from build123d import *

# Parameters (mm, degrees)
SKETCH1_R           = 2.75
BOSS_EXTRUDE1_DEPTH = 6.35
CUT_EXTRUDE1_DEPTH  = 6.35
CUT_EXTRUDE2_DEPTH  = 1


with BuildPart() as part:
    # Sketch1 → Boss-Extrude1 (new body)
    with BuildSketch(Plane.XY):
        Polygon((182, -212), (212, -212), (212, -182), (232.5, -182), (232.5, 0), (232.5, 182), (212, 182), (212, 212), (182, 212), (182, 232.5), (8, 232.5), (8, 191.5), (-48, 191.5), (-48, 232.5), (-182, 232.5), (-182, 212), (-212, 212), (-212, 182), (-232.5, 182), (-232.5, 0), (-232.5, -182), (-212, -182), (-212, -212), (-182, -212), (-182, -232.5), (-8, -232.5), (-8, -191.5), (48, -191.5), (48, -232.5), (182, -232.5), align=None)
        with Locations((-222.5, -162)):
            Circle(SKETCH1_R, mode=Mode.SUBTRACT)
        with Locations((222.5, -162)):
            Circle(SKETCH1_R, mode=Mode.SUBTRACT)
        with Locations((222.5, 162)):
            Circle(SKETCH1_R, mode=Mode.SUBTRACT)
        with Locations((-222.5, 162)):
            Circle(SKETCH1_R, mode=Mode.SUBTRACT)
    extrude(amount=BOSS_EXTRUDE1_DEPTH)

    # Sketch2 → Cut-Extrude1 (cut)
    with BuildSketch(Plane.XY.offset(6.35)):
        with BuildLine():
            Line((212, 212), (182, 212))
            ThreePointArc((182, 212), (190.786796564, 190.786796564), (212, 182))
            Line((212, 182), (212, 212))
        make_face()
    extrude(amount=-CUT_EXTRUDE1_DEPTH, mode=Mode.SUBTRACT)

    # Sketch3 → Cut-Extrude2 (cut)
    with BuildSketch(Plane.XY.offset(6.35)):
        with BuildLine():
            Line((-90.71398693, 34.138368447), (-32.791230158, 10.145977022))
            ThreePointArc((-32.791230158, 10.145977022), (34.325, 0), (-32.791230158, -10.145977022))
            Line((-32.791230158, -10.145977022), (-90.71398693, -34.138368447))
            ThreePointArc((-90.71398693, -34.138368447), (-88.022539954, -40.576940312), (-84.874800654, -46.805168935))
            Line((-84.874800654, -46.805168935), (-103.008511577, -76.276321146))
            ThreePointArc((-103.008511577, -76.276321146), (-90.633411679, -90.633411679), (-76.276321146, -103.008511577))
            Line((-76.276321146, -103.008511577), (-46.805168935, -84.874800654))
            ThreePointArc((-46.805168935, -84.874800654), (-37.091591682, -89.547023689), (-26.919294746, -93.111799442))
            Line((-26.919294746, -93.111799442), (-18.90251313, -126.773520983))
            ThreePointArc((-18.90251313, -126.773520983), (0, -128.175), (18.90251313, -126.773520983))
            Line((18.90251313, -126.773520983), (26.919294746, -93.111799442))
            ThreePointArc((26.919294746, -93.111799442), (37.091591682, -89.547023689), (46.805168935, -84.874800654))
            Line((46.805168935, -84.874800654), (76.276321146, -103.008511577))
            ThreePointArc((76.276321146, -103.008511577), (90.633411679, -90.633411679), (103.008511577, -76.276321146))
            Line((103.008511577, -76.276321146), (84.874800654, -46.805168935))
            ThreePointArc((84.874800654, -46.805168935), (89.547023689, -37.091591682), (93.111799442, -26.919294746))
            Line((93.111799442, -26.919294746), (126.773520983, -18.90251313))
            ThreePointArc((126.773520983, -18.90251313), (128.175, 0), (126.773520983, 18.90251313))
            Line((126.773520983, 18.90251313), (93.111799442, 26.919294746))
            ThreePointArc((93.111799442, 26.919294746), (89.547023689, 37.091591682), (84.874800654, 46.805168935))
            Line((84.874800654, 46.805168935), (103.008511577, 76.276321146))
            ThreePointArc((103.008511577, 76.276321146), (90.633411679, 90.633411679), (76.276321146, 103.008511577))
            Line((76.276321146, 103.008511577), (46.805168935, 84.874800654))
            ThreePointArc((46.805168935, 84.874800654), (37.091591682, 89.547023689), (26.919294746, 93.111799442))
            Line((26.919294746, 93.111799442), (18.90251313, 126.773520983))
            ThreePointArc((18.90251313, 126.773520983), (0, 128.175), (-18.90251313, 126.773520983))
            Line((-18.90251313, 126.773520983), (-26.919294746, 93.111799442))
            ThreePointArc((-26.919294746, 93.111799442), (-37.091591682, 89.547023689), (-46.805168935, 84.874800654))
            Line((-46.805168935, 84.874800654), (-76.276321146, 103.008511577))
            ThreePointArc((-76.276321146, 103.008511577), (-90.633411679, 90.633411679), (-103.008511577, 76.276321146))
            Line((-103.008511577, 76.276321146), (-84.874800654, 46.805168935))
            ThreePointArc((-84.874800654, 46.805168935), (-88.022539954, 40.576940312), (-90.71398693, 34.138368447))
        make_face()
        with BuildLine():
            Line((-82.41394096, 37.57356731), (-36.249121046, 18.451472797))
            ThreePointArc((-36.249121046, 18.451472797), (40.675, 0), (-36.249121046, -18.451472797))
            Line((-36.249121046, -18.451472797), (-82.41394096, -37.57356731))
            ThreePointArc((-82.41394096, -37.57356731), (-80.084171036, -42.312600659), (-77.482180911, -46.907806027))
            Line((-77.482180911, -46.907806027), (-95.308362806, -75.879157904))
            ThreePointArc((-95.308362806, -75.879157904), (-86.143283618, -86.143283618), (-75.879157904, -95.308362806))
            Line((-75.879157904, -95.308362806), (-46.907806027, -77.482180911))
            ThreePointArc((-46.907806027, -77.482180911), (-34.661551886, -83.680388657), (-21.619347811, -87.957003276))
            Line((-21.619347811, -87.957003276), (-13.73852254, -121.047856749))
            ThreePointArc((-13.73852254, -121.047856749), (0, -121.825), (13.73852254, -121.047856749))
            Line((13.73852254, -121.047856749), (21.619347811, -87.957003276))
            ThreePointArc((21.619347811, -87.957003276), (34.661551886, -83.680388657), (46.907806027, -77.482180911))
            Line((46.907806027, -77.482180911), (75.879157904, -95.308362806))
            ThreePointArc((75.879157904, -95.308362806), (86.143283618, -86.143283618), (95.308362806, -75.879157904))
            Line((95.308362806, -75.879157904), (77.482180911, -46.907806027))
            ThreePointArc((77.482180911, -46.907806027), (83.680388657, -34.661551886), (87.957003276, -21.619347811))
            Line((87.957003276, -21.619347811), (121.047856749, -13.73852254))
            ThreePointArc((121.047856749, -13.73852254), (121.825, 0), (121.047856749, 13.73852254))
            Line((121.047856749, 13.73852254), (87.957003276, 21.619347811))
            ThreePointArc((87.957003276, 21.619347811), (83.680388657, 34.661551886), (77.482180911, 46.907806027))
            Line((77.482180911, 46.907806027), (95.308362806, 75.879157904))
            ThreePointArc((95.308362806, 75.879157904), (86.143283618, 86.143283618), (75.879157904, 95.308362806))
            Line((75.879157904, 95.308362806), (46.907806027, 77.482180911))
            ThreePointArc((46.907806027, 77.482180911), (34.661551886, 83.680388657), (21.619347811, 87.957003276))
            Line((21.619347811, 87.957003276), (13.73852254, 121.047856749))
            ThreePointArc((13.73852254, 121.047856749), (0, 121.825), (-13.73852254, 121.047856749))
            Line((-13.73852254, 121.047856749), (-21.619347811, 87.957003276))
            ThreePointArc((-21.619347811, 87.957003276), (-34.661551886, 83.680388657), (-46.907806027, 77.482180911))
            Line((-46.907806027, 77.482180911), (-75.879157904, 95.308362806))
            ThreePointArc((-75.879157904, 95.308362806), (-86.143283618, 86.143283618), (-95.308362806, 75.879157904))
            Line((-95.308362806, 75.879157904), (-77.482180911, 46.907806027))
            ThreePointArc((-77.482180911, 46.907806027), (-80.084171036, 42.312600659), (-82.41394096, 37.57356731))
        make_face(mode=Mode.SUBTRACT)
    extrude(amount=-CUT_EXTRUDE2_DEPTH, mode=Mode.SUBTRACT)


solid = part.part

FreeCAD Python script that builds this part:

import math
import FreeCAD as App
import Part
import Sketcher
Q = App.Units.Quantity


def add_polygon(sketch, points):
    """Adds a closed chain of lines whose ends are joined by coincident constraints."""
    first, n = sketch.GeometryCount, len(points)
    for a, b in zip(points, points[1:] + points[:1]):
        sketch.addGeometry(Part.LineSegment(App.Vector(*a, 0), App.Vector(*b, 0)), False)
    for i in range(n):
        sketch.addConstraint(Sketcher.Constraint("Coincident", first + i, 2, first + (i + 1) % n, 1))

doc = App.newDocument("Part")
body = doc.addObject("PartDesign::Body", "Body")

# Sketch on XY plane
sketch1 = doc.addObject("Sketcher::SketchObject", "Sketch")
body.addObject(sketch1)
sketch1.AttachmentSupport = (doc.XY_Plane, [""])
sketch1.MapMode = "FlatFace"
add_polygon(sketch1, [(182, -212), (212, -212), (212, -182), (232.5, -182), (232.5, 182), (212, 182), (212, 212), (182, 212), (182, 232.5), (8, 232.5), (8, 191.5), (-48, 191.5), (-48, 232.5), (-182, 232.5), (-182, 212), (-212, 212), (-212, 182), (-232.5, 182), (-232.5, -182), (-212, -182), (-212, -212), (-182, -212), (-182, -232.5), (-8, -232.5), (-8, -191.5), (48, -191.5), (48, -232.5), (182, -232.5)])  # lines 0-27
sketch1.addGeometry(Part.Circle(App.Vector(-222.5, -162, 0), App.Vector(0, 0, 1), 2.8), False)  # 28
sketch1.addGeometry(Part.Circle(App.Vector(222.5, -162, 0), App.Vector(0, 0, 1), 2.8), False)  # 29
sketch1.addGeometry(Part.Circle(App.Vector(-222.5, 162, 0), App.Vector(0, 0, 1), 2.8), False)  # 30
sketch1.addGeometry(Part.Circle(App.Vector(222.5, 162, 0), App.Vector(0, 0, 1), 2.8), False)  # 31
sketch1.addConstraint([
    Sketcher.Constraint("Horizontal", 0),
    Sketcher.Constraint("Vertical", 1),
    Sketcher.Constraint("Horizontal", 2),
    Sketcher.Constraint("Vertical", 3),
    Sketcher.Constraint("Horizontal", 4),
    Sketcher.Constraint("Vertical", 5),
    Sketcher.Constraint("Horizontal", 6),
    Sketcher.Constraint("Vertical", 7),
    Sketcher.Constraint("Horizontal", 8),
    Sketcher.Constraint("Vertical", 9),
    Sketcher.Constraint("Horizontal", 10),
    Sketcher.Constraint("Vertical", 11),
    Sketcher.Constraint("Horizontal", 12),
    Sketcher.Constraint("Vertical", 13),
    Sketcher.Constraint("Horizontal", 14),
    Sketcher.Constraint("Vertical", 15),
    Sketcher.Constraint("Horizontal", 16),
    Sketcher.Constraint("Vertical", 17),
    Sketcher.Constraint("Horizontal", 18),
    Sketcher.Constraint("Vertical", 19),
    Sketcher.Constraint("Horizontal", 20),
    Sketcher.Constraint("Vertical", 21),
    Sketcher.Constraint("Horizontal", 22),
    Sketcher.Constraint("Vertical", 23),
    Sketcher.Constraint("Horizontal", 24),
    Sketcher.Constraint("Vertical", 25),
    Sketcher.Constraint("Horizontal", 26),
    Sketcher.Constraint("Vertical", 27),
    Sketcher.Constraint("Equal", 28, 29),
    Sketcher.Constraint("Equal", 29, 30),
    Sketcher.Constraint("Equal", 30, 31),
    Sketcher.Constraint("Symmetric", 29, 3, 30, 3, -1, 1),
    Sketcher.Constraint("Symmetric", 28, 3, 31, 3, -1, 1),
    Sketcher.Constraint("Symmetric", 0, 2, 14, 2, -1, 1),
    Sketcher.Constraint("Symmetric", 2, 2, 16, 2, -1, 1),
    Sketcher.Constraint("Symmetric", 4, 2, 18, 2, -1, 1),
    Sketcher.Constraint("Symmetric", 6, 2, 20, 2, -1, 1),
    Sketcher.Constraint("Symmetric", 8, 2, 22, 2, -1, 1),
    Sketcher.Constraint("Symmetric", 10, 2, 24, 2, -1, 1),
    Sketcher.Constraint("Symmetric", 12, 2, 26, 2, -1, 1),
    Sketcher.Constraint("Symmetric", 28, 3, 29, 3, -2),
    Sketcher.Constraint("Symmetric", 7, 2, 12, 2, -2),
    Sketcher.Constraint("Symmetric", 5, 2, 14, 2, -2),
    Sketcher.Constraint("Horizontal", 4, 2, 15, 2),
    Sketcher.Constraint("Equal", 20, 1),
    Sketcher.Constraint("Equal", 18, 7),
    Sketcher.Constraint("Diameter", 28, 5.5),
    Sketcher.Constraint("DistanceX", 0, 1, 0, 2, 30.0),
    Sketcher.Constraint("DistanceX", 8, 2, 8, 1, 174.0),
    Sketcher.Constraint("DistanceX", 10, 2, 10, 1, 56.0),
    Sketcher.Constraint("DistanceX", 12, 2, 12, 1, 134.0),
    Sketcher.Constraint("DistanceY", 3, 1, 3, 2, 364.0),
    Sketcher.Constraint("DistanceY", 9, 2, 9, 1, 41.0),
    Sketcher.Constraint("DistanceX", 2, 1, 2, 2, 20.5),
    Sketcher.Constraint("DistanceY", 28, 3, -1, 1, 162.0),
    Sketcher.Constraint("DistanceX", 28, 3, 29, 3, 445.0),
])
pad1 = doc.addObject("PartDesign::Pad", "Pad")
body.addObject(pad1)
pad1.Profile = sketch1
pad1.Length = 6.35

# Sketch on XY plane
sketch2 = doc.addObject("Sketcher::SketchObject", "Sketch001")
body.addObject(sketch2)
sketch2.AttachmentSupport = (doc.XY_Plane, [""])
sketch2.MapMode = "FlatFace"
sketch2.AttachmentOffset = App.Placement(App.Vector(0, 0, 6.35), App.Rotation())
sketch2.addGeometry([
    Part.LineSegment(App.Vector(212, 212, 0), App.Vector(182, 212, 0)),
    Part.ArcOfCircle(Part.Circle(App.Vector(212, 212, 0), App.Vector(0, 0, 1), 30), math.radians(180), math.radians(270)),
    Part.LineSegment(App.Vector(212, 182, 0), App.Vector(212, 212, 0)),
], False)
sketch2.addConstraint([
    Sketcher.Constraint("Coincident", 0, 2, 1, 1),
    Sketcher.Constraint("Coincident", 1, 2, 2, 1),
    Sketcher.Constraint("Coincident", 2, 2, 0, 1),
    Sketcher.Constraint("Horizontal", 0),
    Sketcher.Constraint("Vertical", 2),
    Sketcher.Constraint("Coincident", 2, 2, 1, 3),
    Sketcher.Constraint("Radius", 1, 30.0),
    Sketcher.Constraint("DistanceX", -1, 1, 1, 3, 212.0),
    Sketcher.Constraint("DistanceY", -1, 1, 1, 3, 212.0),
])
pocket1 = doc.addObject("PartDesign::Pocket", "Pocket")
body.addObject(pocket1)
pocket1.Profile = sketch2
pocket1.Length = 6.35

# Sketch on XY plane
sketch3 = doc.addObject("Sketcher::SketchObject", "Sketch002")
body.addObject(sketch3)
sketch3.AttachmentSupport = (doc.XY_Plane, [""])
sketch3.MapMode = "FlatFace"
sketch3.AttachmentOffset = App.Placement(App.Vector(0, 0, 6.35), App.Rotation())
sketch3.addGeometry([
    Part.LineSegment(App.Vector(-91, 34, 0), App.Vector(-33, 10, 0)),  # 0
    Part.ArcOfCircle(Part.Circle(App.Vector(0, 0, 0), App.Vector(0, 0, 1), 34), math.radians(-163), math.radians(163)),  # 1
    Part.LineSegment(App.Vector(-33, -10, 0), App.Vector(-91, -34, 0)),  # 2
    Part.ArcOfCircle(Part.Circle(App.Vector(0, 0, 0), App.Vector(0, 0, 1), 97), math.radians(-159.38), math.radians(-151.12)),  # 3
    Part.LineSegment(App.Vector(-85, -47, 0), App.Vector(-103, -76, 0)),  # 4
    Part.ArcOfCircle(Part.Circle(App.Vector(0, 0, 0), App.Vector(0, 0, 1), 128), math.radians(-143.48), math.radians(-126.52)),  # 5
    Part.LineSegment(App.Vector(-76, -103, 0), App.Vector(-47, -85, 0)),  # 6
    Part.ArcOfCircle(Part.Circle(App.Vector(0, 0, 0), App.Vector(0, 0, 1), 97), math.radians(-118.88), math.radians(-106.12)),  # 7
    Part.LineSegment(App.Vector(-27, -93, 0), App.Vector(-19, -127, 0)),  # 8
    Part.ArcOfCircle(Part.Circle(App.Vector(0, 0, 0), App.Vector(0, 0, 1), 128), math.radians(-98.48), math.radians(-81.52)),  # 9
    Part.LineSegment(App.Vector(19, -127, 0), App.Vector(27, -93, 0)),  # 10
    Part.ArcOfCircle(Part.Circle(App.Vector(0, 0, 0), App.Vector(0, 0, 1), 97), math.radians(-73.88), math.radians(-61.12)),  # 11
    Part.LineSegment(App.Vector(47, -85, 0), App.Vector(76, -103, 0)),  # 12
    Part.ArcOfCircle(Part.Circle(App.Vector(0, 0, 0), App.Vector(0, 0, 1), 128), math.radians(-53.48), math.radians(-36.52)),  # 13
    Part.LineSegment(App.Vector(103, -76, 0), App.Vector(85, -47, 0)),  # 14
    Part.ArcOfCircle(Part.Circle(App.Vector(0, 0, 0), App.Vector(0, 0, 1), 97), math.radians(-28.88), math.radians(-16.12)),  # 15
    Part.LineSegment(App.Vector(93, -27, 0), App.Vector(127, -19, 0)),  # 16
    Part.ArcOfCircle(Part.Circle(App.Vector(0, 0, 0), App.Vector(0, 0, 1), 128), math.radians(-8.48), math.radians(8.48)),  # 17
    Part.LineSegment(App.Vector(127, 19, 0), App.Vector(93, 27, 0)),  # 18
    Part.ArcOfCircle(Part.Circle(App.Vector(0, 0, 0), App.Vector(0, 0, 1), 97), math.radians(16.12), math.radians(28.88)),  # 19
    Part.LineSegment(App.Vector(85, 47, 0), App.Vector(103, 76, 0)),  # 20
    Part.ArcOfCircle(Part.Circle(App.Vector(0, 0, 0), App.Vector(0, 0, 1), 128), math.radians(36.52), math.radians(53.48)),  # 21
    Part.LineSegment(App.Vector(76, 103, 0), App.Vector(47, 85, 0)),  # 22
    Part.ArcOfCircle(Part.Circle(App.Vector(0, 0, 0), App.Vector(0, 0, 1), 97), math.radians(61.12), math.radians(73.88)),  # 23
    Part.LineSegment(App.Vector(27, 93, 0), App.Vector(19, 127, 0)),  # 24
    Part.ArcOfCircle(Part.Circle(App.Vector(0, 0, 0), App.Vector(0, 0, 1), 128), math.radians(81.52), math.radians(98.48)),  # 25
    Part.LineSegment(App.Vector(-19, 127, 0), App.Vector(-27, 93, 0)),  # 26
    Part.ArcOfCircle(Part.Circle(App.Vector(0, 0, 0), App.Vector(0, 0, 1), 97), math.radians(106.12), math.radians(118.88)),  # 27
    Part.LineSegment(App.Vector(-47, 85, 0), App.Vector(-76, 103, 0)),  # 28
    Part.ArcOfCircle(Part.Circle(App.Vector(0, 0, 0), App.Vector(0, 0, 1), 128), math.radians(126.52), math.radians(143.48)),  # 29
    Part.LineSegment(App.Vector(-103, 76, 0), App.Vector(-85, 47, 0)),  # 30
    Part.ArcOfCircle(Part.Circle(App.Vector(0, 0, 0), App.Vector(0, 0, 1), 97), math.radians(151.12), math.radians(159.38)),  # 31
    Part.LineSegment(App.Vector(-36, 18, 0), App.Vector(-82, 38, 0)),  # 32
    Part.ArcOfCircle(Part.Circle(App.Vector(0, 0, 0), App.Vector(0, 0, 1), 91), math.radians(148.81), math.radians(155.49)),  # 33
    Part.LineSegment(App.Vector(-77, 47, 0), App.Vector(-95, 76, 0)),  # 34
    Part.ArcOfCircle(Part.Circle(App.Vector(0, 0, 0), App.Vector(0, 0, 1), 122), math.radians(128.52), math.radians(141.48)),  # 35
    Part.LineSegment(App.Vector(-76, 95, 0), App.Vector(-47, 77, 0)),  # 36
    Part.ArcOfCircle(Part.Circle(App.Vector(0, 0, 0), App.Vector(0, 0, 1), 91), math.radians(103.81), math.radians(121.19)),  # 37
    Part.LineSegment(App.Vector(-22, 88, 0), App.Vector(-14, 121, 0)),  # 38
    Part.ArcOfCircle(Part.Circle(App.Vector(0, 0, 0), App.Vector(0, 0, 1), 122), math.radians(83.52), math.radians(96.48)),  # 39
    Part.LineSegment(App.Vector(14, 121, 0), App.Vector(22, 88, 0)),  # 40
    Part.ArcOfCircle(Part.Circle(App.Vector(0, 0, 0), App.Vector(0, 0, 1), 91), math.radians(58.81), math.radians(76.19)),  # 41
    Part.LineSegment(App.Vector(47, 77, 0), App.Vector(76, 95, 0)),  # 42
    Part.ArcOfCircle(Part.Circle(App.Vector(0, 0, 0), App.Vector(0, 0, 1), 122), math.radians(38.52), math.radians(51.48)),  # 43
    Part.LineSegment(App.Vector(95, 76, 0), App.Vector(77, 47, 0)),  # 44
    Part.ArcOfCircle(Part.Circle(App.Vector(0, 0, 0), App.Vector(0, 0, 1), 91), math.radians(13.81), math.radians(31.19)),  # 45
    Part.LineSegment(App.Vector(88, 22, 0), App.Vector(121, 14, 0)),  # 46
    Part.ArcOfCircle(Part.Circle(App.Vector(0, 0, 0), App.Vector(0, 0, 1), 122), math.radians(-6.48), math.radians(6.48)),  # 47
    Part.LineSegment(App.Vector(121, -14, 0), App.Vector(88, -22, 0)),  # 48
    Part.ArcOfCircle(Part.Circle(App.Vector(0, 0, 0), App.Vector(0, 0, 1), 91), math.radians(-31.19), math.radians(-13.81)),  # 49
    Part.LineSegment(App.Vector(77, -47, 0), App.Vector(95, -76, 0)),  # 50
    Part.ArcOfCircle(Part.Circle(App.Vector(0, 0, 0), App.Vector(0, 0, 1), 122), math.radians(-51.48), math.radians(-38.52)),  # 51
    Part.LineSegment(App.Vector(76, -95, 0), App.Vector(47, -77, 0)),  # 52
    Part.ArcOfCircle(Part.Circle(App.Vector(0, 0, 0), App.Vector(0, 0, 1), 91), math.radians(-76.19), math.radians(-58.81)),  # 53
    Part.LineSegment(App.Vector(22, -88, 0), App.Vector(14, -121, 0)),  # 54
    Part.ArcOfCircle(Part.Circle(App.Vector(0, 0, 0), App.Vector(0, 0, 1), 122), math.radians(-96.48), math.radians(-83.52)),  # 55
    Part.LineSegment(App.Vector(-14, -121, 0), App.Vector(-22, -88, 0)),  # 56
    Part.ArcOfCircle(Part.Circle(App.Vector(0, 0, 0), App.Vector(0, 0, 1), 91), math.radians(-121.19), math.radians(-103.81)),  # 57
    Part.LineSegment(App.Vector(-47, -77, 0), App.Vector(-76, -95, 0)),  # 58
    Part.ArcOfCircle(Part.Circle(App.Vector(0, 0, 0), App.Vector(0, 0, 1), 122), math.radians(-141.48), math.radians(-128.52)),  # 59
    Part.LineSegment(App.Vector(-95, -76, 0), App.Vector(-77, -47, 0)),  # 60
    Part.ArcOfCircle(Part.Circle(App.Vector(0, 0, 0), App.Vector(0, 0, 1), 91), math.radians(-155.49), math.radians(-148.81)),  # 61
    Part.LineSegment(App.Vector(-82, -38, 0), App.Vector(-36, -18, 0)),  # 62
    Part.ArcOfCircle(Part.Circle(App.Vector(0, 0, 0), App.Vector(0, 0, 1), 41), math.radians(-153), math.radians(153)),  # 63
], False)
sketch3.addConstraint([
    Sketcher.Constraint("Coincident", 0, 2, 1, 2),
    Sketcher.Constraint("Coincident", 1, 1, 2, 1),
    Sketcher.Constraint("Coincident", 2, 2, 3, 1),
    Sketcher.Constraint("Coincident", 3, 2, 4, 1),
    Sketcher.Constraint("Coincident", 4, 2, 5, 1),
    Sketcher.Constraint("Coincident", 5, 2, 6, 1),
    Sketcher.Constraint("Coincident", 6, 2, 7, 1),
    Sketcher.Constraint("Coincident", 7, 2, 8, 1),
    Sketcher.Constraint("Coincident", 8, 2, 9, 1),
    Sketcher.Constraint("Coincident", 9, 2, 10, 1),
    Sketcher.Constraint("Coincident", 10, 2, 11, 1),
    Sketcher.Constraint("Coincident", 11, 2, 12, 1),
    Sketcher.Constraint("Coincident", 12, 2, 13, 1),
    Sketcher.Constraint("Coincident", 13, 2, 14, 1),
    Sketcher.Constraint("Coincident", 14, 2, 15, 1),
    Sketcher.Constraint("Coincident", 15, 2, 16, 1),
    Sketcher.Constraint("Coincident", 16, 2, 17, 1),
    Sketcher.Constraint("Coincident", 17, 2, 18, 1),
    Sketcher.Constraint("Coincident", 18, 2, 19, 1),
    Sketcher.Constraint("Coincident", 19, 2, 20, 1),
    Sketcher.Constraint("Coincident", 20, 2, 21, 1),
    Sketcher.Constraint("Coincident", 21, 2, 22, 1),
    Sketcher.Constraint("Coincident", 22, 2, 23, 1),
    Sketcher.Constraint("Coincident", 23, 2, 24, 1),
    Sketcher.Constraint("Coincident", 24, 2, 25, 1),
    Sketcher.Constraint("Coincident", 25, 2, 26, 1),
    Sketcher.Constraint("Coincident", 26, 2, 27, 1),
    Sketcher.Constraint("Coincident", 27, 2, 28, 1),
    Sketcher.Constraint("Coincident", 28, 2, 29, 1),
    Sketcher.Constraint("Coincident", 29, 2, 30, 1),
    Sketcher.Constraint("Coincident", 30, 2, 31, 1),
    Sketcher.Constraint("Coincident", 31, 2, 0, 1),
    Sketcher.Constraint("Coincident", 32, 2, 33, 2),
    Sketcher.Constraint("Coincident", 33, 1, 34, 1),
    Sketcher.Constraint("Coincident", 34, 2, 35, 2),
    Sketcher.Constraint("Coincident", 35, 1, 36, 1),
    Sketcher.Constraint("Coincident", 36, 2, 37, 2),
    Sketcher.Constraint("Coincident", 37, 1, 38, 1),
    Sketcher.Constraint("Coincident", 38, 2, 39, 2),
    Sketcher.Constraint("Coincident", 39, 1, 40, 1),
    Sketcher.Constraint("Coincident", 40, 2, 41, 2),
    Sketcher.Constraint("Coincident", 41, 1, 42, 1),
    Sketcher.Constraint("Coincident", 42, 2, 43, 2),
    Sketcher.Constraint("Coincident", 43, 1, 44, 1),
    Sketcher.Constraint("Coincident", 44, 2, 45, 2),
    Sketcher.Constraint("Coincident", 45, 1, 46, 1),
    Sketcher.Constraint("Coincident", 46, 2, 47, 2),
    Sketcher.Constraint("Coincident", 47, 1, 48, 1),
    Sketcher.Constraint("Coincident", 48, 2, 49, 2),
    Sketcher.Constraint("Coincident", 49, 1, 50, 1),
    Sketcher.Constraint("Coincident", 50, 2, 51, 2),
    Sketcher.Constraint("Coincident", 51, 1, 52, 1),
    Sketcher.Constraint("Coincident", 52, 2, 53, 2),
    Sketcher.Constraint("Coincident", 53, 1, 54, 1),
    Sketcher.Constraint("Coincident", 54, 2, 55, 2),
    Sketcher.Constraint("Coincident", 55, 1, 56, 1),
    Sketcher.Constraint("Coincident", 56, 2, 57, 2),
    Sketcher.Constraint("Coincident", 57, 1, 58, 1),
    Sketcher.Constraint("Coincident", 58, 2, 59, 2),
    Sketcher.Constraint("Coincident", 59, 1, 60, 1),
    Sketcher.Constraint("Coincident", 60, 2, 61, 2),
    Sketcher.Constraint("Coincident", 61, 1, 62, 1),
    Sketcher.Constraint("Coincident", 62, 2, 63, 1),
    Sketcher.Constraint("Coincident", 63, 2, 32, 1),
    Sketcher.Constraint("Coincident", 1, 3, -1, 1),
    Sketcher.Constraint("Coincident", 3, 3, -1, 1),
    Sketcher.Constraint("Coincident", 5, 3, -1, 1),
    Sketcher.Constraint("Coincident", 7, 3, -1, 1),
    Sketcher.Constraint("Coincident", 9, 3, -1, 1),
    Sketcher.Constraint("Coincident", 11, 3, -1, 1),
    Sketcher.Constraint("Coincident", 13, 3, -1, 1),
    Sketcher.Constraint("Coincident", 15, 3, -1, 1),
    Sketcher.Constraint("Coincident", 17, 3, -1, 1),
    Sketcher.Constraint("Coincident", 19, 3, -1, 1),
    Sketcher.Constraint("Coincident", 21, 3, -1, 1),
    Sketcher.Constraint("Coincident", 23, 3, -1, 1),
    Sketcher.Constraint("Coincident", 25, 3, -1, 1),
    Sketcher.Constraint("Coincident", 27, 3, -1, 1),
    Sketcher.Constraint("Coincident", 29, 3, -1, 1),
    Sketcher.Constraint("Coincident", 31, 3, -1, 1),
    Sketcher.Constraint("Coincident", 33, 3, -1, 1),
    Sketcher.Constraint("Coincident", 35, 3, -1, 1),
    Sketcher.Constraint("Coincident", 37, 3, -1, 1),
    Sketcher.Constraint("Coincident", 39, 3, -1, 1),
    Sketcher.Constraint("Coincident", 41, 3, -1, 1),
    Sketcher.Constraint("Coincident", 43, 3, -1, 1),
    Sketcher.Constraint("Coincident", 45, 3, -1, 1),
    Sketcher.Constraint("Coincident", 47, 3, -1, 1),
    Sketcher.Constraint("Coincident", 49, 3, -1, 1),
    Sketcher.Constraint("Coincident", 51, 3, -1, 1),
    Sketcher.Constraint("Coincident", 53, 3, -1, 1),
    Sketcher.Constraint("Coincident", 55, 3, -1, 1),
    Sketcher.Constraint("Coincident", 57, 3, -1, 1),
    Sketcher.Constraint("Coincident", 59, 3, -1, 1),
    Sketcher.Constraint("Coincident", 61, 3, -1, 1),
    Sketcher.Constraint("Coincident", 63, 3, -1, 1),
    Sketcher.Constraint("Equal", 3, 7),
    Sketcher.Constraint("Equal", 5, 9),
    Sketcher.Constraint("Equal", 7, 11),
    Sketcher.Constraint("Equal", 9, 13),
    Sketcher.Constraint("Equal", 11, 15),
    Sketcher.Constraint("Equal", 13, 17),
    Sketcher.Constraint("Equal", 15, 19),
    Sketcher.Constraint("Equal", 17, 21),
    Sketcher.Constraint("Equal", 19, 23),
    Sketcher.Constraint("Equal", 21, 25),
    Sketcher.Constraint("Equal", 23, 27),
    Sketcher.Constraint("Equal", 25, 29),
    Sketcher.Constraint("Equal", 27, 31),
    Sketcher.Constraint("Equal", 33, 37),
    Sketcher.Constraint("Equal", 35, 39),
    Sketcher.Constraint("Equal", 37, 41),
    Sketcher.Constraint("Equal", 39, 43),
    Sketcher.Constraint("Equal", 41, 45),
    Sketcher.Constraint("Equal", 43, 47),
    Sketcher.Constraint("Equal", 45, 49),
    Sketcher.Constraint("Equal", 47, 51),
    Sketcher.Constraint("Equal", 49, 53),
    Sketcher.Constraint("Equal", 51, 55),
    Sketcher.Constraint("Equal", 53, 57),
    Sketcher.Constraint("Equal", 55, 59),
    Sketcher.Constraint("Equal", 57, 61),
    Sketcher.Constraint("Perpendicular", 4, 12),
    Sketcher.Constraint("Perpendicular", 6, 14),
    Sketcher.Constraint("Perpendicular", 8, 16),
    Sketcher.Constraint("Perpendicular", 10, 18),
    Sketcher.Constraint("Perpendicular", 12, 20),
    Sketcher.Constraint("Perpendicular", 14, 22),
    Sketcher.Constraint("Perpendicular", 16, 24),
    Sketcher.Constraint("Perpendicular", 18, 26),
    Sketcher.Constraint("Perpendicular", 20, 28),
    Sketcher.Constraint("Perpendicular", 22, 30),
    Sketcher.Constraint("Parallel", 0, 32),
    Sketcher.Constraint("Parallel", 30, 34),
    Sketcher.Constraint("Parallel", 28, 36),
    Sketcher.Constraint("Parallel", 26, 38),
    Sketcher.Constraint("Parallel", 24, 40),
    Sketcher.Constraint("Perpendicular", 34, 42),
    Sketcher.Constraint("Perpendicular", 36, 44),
    Sketcher.Constraint("Perpendicular", 38, 46),
    Sketcher.Constraint("Perpendicular", 40, 48),
    Sketcher.Constraint("Perpendicular", 42, 50),
    Sketcher.Constraint("Perpendicular", 44, 52),
    Sketcher.Constraint("Perpendicular", 46, 54),
    Sketcher.Constraint("Perpendicular", 48, 56),
    Sketcher.Constraint("Perpendicular", 50, 58),
    Sketcher.Constraint("Perpendicular", 52, 60),
    Sketcher.Constraint("Parallel", 2, 62),
    Sketcher.Constraint("Horizontal", 8, 2, 9, 2),
    Sketcher.Constraint("Horizontal", 7, 2, 10, 2),
    Sketcher.Constraint("Horizontal", 6, 2, 11, 2),
    Sketcher.Constraint("Horizontal", 5, 2, 12, 2),
    Sketcher.Constraint("Horizontal", 4, 2, 13, 2),
    Sketcher.Constraint("Horizontal", 24, 2, 25, 2),
    Sketcher.Constraint("Horizontal", 22, 2, 27, 2),
    Sketcher.Constraint("Horizontal", 20, 2, 29, 2),
    Sketcher.Constraint("Horizontal", 38, 2, 39, 1),
    Sketcher.Constraint("Horizontal", 36, 2, 41, 1),
    Sketcher.Constraint("Horizontal", 34, 2, 43, 1),
    Sketcher.Constraint("Horizontal", 54, 2, 55, 1),
    Sketcher.Constraint("Horizontal", 52, 2, 57, 1),
    Sketcher.Constraint("Horizontal", 50, 2, 59, 1),
    Sketcher.Constraint("Vertical", 0, 2, 1, 1),
    Sketcher.Constraint("Vertical", 16, 2, 17, 2),
    Sketcher.Constraint("Vertical", 14, 2, 19, 2),
    Sketcher.Constraint("Vertical", 12, 2, 21, 2),
    Sketcher.Constraint("Vertical", 10, 2, 23, 2),
    Sketcher.Constraint("Vertical", 2, 2, 31, 2),
    Sketcher.Constraint("Vertical", 46, 2, 47, 1),
    Sketcher.Constraint("Vertical", 44, 2, 49, 1),
    Sketcher.Constraint("Vertical", 42, 2, 51, 1),
    Sketcher.Constraint("Vertical", 40, 2, 53, 1),
    Sketcher.Constraint("Vertical", 32, 2, 61, 1),
    Sketcher.Constraint("Equal", 4, 6),
    Sketcher.Constraint("Equal", 6, 8),
    Sketcher.Constraint("Equal", 14, 16),
    Sketcher.Constraint("Equal", 34, 36),
    Sketcher.Constraint("Equal", 36, 38),
    Sketcher.Constraint("Equal", 44, 46),
    Sketcher.Constraint("Angle", 0, Q("-22.5 deg")),
    Sketcher.Constraint("Radius", 1, 34.325),
    Sketcher.Constraint("Radius", 3, 96.925),
    Sketcher.Constraint("Radius", 5, 128.175),
    Sketcher.Constraint("Radius", 33, 90.575),
    Sketcher.Constraint("Radius", 35, 121.825),
    Sketcher.Constraint("Radius", 63, 40.675),
    Sketcher.Constraint("DistanceX", 3, 2, -1, 1, 84.874801),
    Sketcher.Constraint("DistanceY", 7, 2, -1, 1, 93.111799),
    Sketcher.Constraint("Distance", 0, 62.69514),
    Sketcher.Constraint("Distance", 32, 49.968441),
    Sketcher.Constraint("Distance", 34, 34.016349),
    Sketcher.Constraint("DistanceX", 4, 2, -1, 1, 103.008512),
])
pocket2 = doc.addObject("PartDesign::Pocket", "Pocket001")
body.addObject(pocket2)
pocket2.Profile = sketch3
pocket2.Length = 1

doc.recompute()
